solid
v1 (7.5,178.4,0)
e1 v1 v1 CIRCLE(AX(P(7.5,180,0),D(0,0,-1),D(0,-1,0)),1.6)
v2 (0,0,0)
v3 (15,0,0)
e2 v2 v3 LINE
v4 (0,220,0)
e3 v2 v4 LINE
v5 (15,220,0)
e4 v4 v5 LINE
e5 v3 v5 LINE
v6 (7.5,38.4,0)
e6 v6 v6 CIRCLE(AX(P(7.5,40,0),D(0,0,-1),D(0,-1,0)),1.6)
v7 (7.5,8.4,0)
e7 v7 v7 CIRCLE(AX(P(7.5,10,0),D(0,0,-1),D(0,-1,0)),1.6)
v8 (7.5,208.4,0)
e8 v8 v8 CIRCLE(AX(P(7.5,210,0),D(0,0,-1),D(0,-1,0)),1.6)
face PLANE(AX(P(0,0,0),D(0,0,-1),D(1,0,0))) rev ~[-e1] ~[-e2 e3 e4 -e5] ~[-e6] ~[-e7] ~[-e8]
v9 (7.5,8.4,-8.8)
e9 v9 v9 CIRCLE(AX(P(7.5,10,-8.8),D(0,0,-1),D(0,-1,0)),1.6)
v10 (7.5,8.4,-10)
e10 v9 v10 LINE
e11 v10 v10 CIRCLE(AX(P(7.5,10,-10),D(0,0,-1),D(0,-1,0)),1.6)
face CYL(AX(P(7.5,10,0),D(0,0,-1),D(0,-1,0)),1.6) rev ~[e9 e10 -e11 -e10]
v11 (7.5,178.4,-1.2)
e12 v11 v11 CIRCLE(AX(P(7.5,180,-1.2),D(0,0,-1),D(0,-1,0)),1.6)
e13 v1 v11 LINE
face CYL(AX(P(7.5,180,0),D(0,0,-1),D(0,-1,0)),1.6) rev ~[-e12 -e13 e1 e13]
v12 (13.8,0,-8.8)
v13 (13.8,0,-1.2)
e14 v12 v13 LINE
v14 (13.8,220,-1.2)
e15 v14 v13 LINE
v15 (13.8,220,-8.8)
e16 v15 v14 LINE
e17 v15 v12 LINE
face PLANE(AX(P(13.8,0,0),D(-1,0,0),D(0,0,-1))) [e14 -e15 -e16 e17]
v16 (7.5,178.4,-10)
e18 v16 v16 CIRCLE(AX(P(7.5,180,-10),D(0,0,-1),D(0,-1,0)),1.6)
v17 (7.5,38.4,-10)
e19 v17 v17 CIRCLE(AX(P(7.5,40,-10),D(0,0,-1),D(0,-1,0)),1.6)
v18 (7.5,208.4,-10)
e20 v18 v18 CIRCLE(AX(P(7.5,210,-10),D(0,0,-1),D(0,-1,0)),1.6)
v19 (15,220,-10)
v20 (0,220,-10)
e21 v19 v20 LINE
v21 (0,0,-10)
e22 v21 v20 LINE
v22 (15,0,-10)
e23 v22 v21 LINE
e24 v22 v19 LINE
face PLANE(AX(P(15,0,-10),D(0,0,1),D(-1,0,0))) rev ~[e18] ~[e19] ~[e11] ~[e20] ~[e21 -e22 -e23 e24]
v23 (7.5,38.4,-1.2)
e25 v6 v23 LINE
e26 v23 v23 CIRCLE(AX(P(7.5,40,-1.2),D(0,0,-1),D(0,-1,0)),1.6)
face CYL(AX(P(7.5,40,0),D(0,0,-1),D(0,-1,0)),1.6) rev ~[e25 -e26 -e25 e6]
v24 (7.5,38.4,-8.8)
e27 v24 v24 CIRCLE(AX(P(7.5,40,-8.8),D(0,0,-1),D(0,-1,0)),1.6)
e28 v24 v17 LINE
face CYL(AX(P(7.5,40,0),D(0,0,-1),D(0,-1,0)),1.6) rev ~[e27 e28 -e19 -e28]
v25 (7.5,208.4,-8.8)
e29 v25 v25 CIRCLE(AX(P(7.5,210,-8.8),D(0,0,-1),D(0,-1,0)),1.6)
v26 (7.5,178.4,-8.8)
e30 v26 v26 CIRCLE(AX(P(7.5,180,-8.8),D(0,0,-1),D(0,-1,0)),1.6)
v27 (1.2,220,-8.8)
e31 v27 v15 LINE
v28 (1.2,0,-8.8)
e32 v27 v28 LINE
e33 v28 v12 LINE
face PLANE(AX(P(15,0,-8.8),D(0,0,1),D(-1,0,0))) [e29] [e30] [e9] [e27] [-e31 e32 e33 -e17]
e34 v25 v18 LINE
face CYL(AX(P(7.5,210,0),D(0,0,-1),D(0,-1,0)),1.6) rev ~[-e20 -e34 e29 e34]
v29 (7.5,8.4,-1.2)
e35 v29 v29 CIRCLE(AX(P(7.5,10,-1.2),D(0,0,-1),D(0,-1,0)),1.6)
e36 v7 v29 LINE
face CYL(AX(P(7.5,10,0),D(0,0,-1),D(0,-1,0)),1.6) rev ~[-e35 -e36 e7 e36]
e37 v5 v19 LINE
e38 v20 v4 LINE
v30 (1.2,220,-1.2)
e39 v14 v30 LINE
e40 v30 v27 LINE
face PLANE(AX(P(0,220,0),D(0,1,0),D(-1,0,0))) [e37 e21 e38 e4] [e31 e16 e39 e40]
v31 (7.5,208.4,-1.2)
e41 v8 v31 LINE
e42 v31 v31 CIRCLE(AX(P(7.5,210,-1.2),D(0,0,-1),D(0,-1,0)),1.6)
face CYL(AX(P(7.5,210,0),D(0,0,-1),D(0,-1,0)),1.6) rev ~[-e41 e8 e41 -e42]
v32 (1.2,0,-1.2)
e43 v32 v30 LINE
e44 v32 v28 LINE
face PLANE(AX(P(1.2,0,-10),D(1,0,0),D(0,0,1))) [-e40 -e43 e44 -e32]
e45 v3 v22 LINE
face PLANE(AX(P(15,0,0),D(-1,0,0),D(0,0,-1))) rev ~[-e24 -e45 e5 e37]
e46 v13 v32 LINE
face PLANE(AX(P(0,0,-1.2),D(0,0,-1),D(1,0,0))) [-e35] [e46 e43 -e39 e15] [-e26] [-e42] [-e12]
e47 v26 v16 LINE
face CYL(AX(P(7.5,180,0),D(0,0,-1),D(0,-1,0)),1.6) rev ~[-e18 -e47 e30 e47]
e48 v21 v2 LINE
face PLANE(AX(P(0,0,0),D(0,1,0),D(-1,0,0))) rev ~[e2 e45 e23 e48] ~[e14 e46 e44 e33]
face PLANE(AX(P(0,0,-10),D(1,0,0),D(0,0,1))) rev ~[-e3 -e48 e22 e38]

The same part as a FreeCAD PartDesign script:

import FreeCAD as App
import Part
import Sketcher
from FreeCAD import Vector


def faces_at(feature, points):
    """Names of the faces that lie closest to the given points."""
    faces = feature.Shape.Faces
    near = lambda p: min(range(len(faces)), key=lambda i: faces[i].distToShape(Part.Vertex(*p))[0])
    return sorted({f"Face{near(p) + 1}" for p in points})

doc = App.newDocument("Part")
body = doc.addObject("PartDesign::Body", "Body")

sketch1 = body.newObject("Sketcher::SketchObject", "Sketch")
sketch1.AttachmentSupport = (doc.getObject("XZ_Plane"), [""])
sketch1.MapMode = "FlatFace"
sketch1.addGeometry(Part.LineSegment(Vector(0, -10, 0), Vector(0, 0, 0)), False)
sketch1.addGeometry(Part.LineSegment(Vector(0, 0, 0), Vector(15, 0, 0)), False)
sketch1.addGeometry(Part.LineSegment(Vector(15, 0, 0), Vector(15, -10, 0)), False)
sketch1.addGeometry(Part.LineSegment(Vector(15, -10, 0), Vector(0, -10, 0)), False)
sketch1.addConstraint(Sketcher.Constraint("Coincident", 0, 2, 1, 1))
sketch1.addConstraint(Sketcher.Constraint("Coincident", 1, 2, 2, 1))
sketch1.addConstraint(Sketcher.Constraint("Coincident", 2, 2, 3, 1))
sketch1.addConstraint(Sketcher.Constraint("Coincident", 3, 2, 0, 1))
sketch1.addConstraint(Sketcher.Constraint("Vertical", 0))
sketch1.addConstraint(Sketcher.Constraint("Horizontal", 1))
sketch1.addConstraint(Sketcher.Constraint("Vertical", 2))
sketch1.addConstraint(Sketcher.Constraint("Horizontal", 3))
sketch1.addConstraint(Sketcher.Constraint("Coincident", 0, 2, -1, 1))
sketch1.addConstraint(Sketcher.Constraint("DistanceX", 1, 1, 1, 2, 15.0))
sketch1.addConstraint(Sketcher.Constraint("DistanceY", 0, 1, 0, 2, 10.0))
pad1 = body.newObject("PartDesign::Pad", "Pad")
pad1.Profile = sketch1
pad1.Length = 220
pad1.Reversed = True
doc.recompute()

thickness = body.newObject("PartDesign::Thickness", "Thickness")
thickness.Base = (pad1, faces_at(pad1, [(10, 0, -3.333), (10, 220, -3.333)]))
thickness.Value = 1.2
thickness.Reversed = True
thickness.Join = "Intersection"

sketch2 = body.newObject("Sketcher::SketchObject", "Sketch001")
sketch2.AttachmentSupport = (doc.getObject("XY_Plane"), [""])
sketch2.MapMode = "FlatFace"
sketch2.addGeometry(Part.Circle(Vector(7.5, 10, 0), Vector(0, 0, 1), 1.6), False)
sketch2.addGeometry(Part.Circle(Vector(7.5, 40, 0), Vector(0, 0, 1), 1.6), False)
sketch2.addGeometry(Part.Circle(Vector(7.5, 210, 0), Vector(0, 0, 1), 1.6), False)
sketch2.addGeometry(Part.Circle(Vector(7.5, 180, 0), Vector(0, 0, 1), 1.6), False)
sketch2.addConstraint(Sketcher.Constraint("Equal", 0, 1))
sketch2.addConstraint(Sketcher.Constraint("Equal", 1, 2))
sketch2.addConstraint(Sketcher.Constraint("Equal", 2, 3))
sketch2.addConstraint(Sketcher.Constraint("Vertical", 0, 3, 1, 3))
sketch2.addConstraint(Sketcher.Constraint("Vertical", 1, 3, 2, 3))
sketch2.addConstraint(Sketcher.Constraint("Vertical", 2, 3, 3, 3))
sketch2.addConstraint(Sketcher.Constraint("Diameter", 0, 3.2))
sketch2.addConstraint(Sketcher.Constraint("DistanceY", -1, 1, 0, 3, 10.0))
sketch2.addConstraint(Sketcher.Constraint("DistanceY", -1, 1, 1, 3, 40.0))
sketch2.addConstraint(Sketcher.Constraint("DistanceY", -1, 1, 2, 3, 210.0))
sketch2.addConstraint(Sketcher.Constraint("DistanceY", -1, 1, 3, 3, 180.0))
sketch2.addConstraint(Sketcher.Constraint("DistanceX", -1, 1, 0, 3, 7.5))
doc.recompute()
hole = body.newObject("PartDesign::Hole", "Hole")
hole.Profile = sketch2
hole.ThreadType = "None"
hole.Diameter = 3.2
hole.DepthType = "ThroughAll"

doc.recompute()
